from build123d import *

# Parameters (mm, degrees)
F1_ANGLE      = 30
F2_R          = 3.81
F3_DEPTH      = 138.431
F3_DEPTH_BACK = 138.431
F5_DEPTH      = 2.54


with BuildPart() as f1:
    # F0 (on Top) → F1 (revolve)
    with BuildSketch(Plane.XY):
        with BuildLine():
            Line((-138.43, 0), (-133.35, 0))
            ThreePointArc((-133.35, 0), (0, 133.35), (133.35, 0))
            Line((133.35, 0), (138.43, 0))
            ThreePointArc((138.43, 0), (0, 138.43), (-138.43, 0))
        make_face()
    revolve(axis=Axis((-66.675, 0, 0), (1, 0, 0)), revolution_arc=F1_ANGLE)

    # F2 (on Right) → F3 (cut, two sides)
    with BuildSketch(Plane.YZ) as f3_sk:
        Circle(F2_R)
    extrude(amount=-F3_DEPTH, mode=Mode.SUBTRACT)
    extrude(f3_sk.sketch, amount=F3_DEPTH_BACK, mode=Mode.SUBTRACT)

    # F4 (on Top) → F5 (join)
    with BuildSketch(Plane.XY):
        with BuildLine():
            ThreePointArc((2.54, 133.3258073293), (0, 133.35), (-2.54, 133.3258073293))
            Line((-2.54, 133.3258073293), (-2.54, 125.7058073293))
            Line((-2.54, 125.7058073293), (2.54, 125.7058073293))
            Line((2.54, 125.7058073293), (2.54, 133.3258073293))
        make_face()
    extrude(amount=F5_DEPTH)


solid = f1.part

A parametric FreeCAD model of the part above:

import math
import FreeCAD as App
import Part
import Sketcher
Q = App.Units.Quantity

doc = App.newDocument("Part")
body = doc.addObject("PartDesign::Body", "Body")

# Sketch on XY plane
sketch1 = doc.addObject("Sketcher::SketchObject", "Sketch")
body.addObject(sketch1)
sketch1.AttachmentSupport = (doc.XY_Plane, [""])
sketch1.MapMode = "FlatFace"
sketch1.addGeometry([
    Part.LineSegment(App.Vector(-138, 0, 0), App.Vector(-133, 0, 0)),
    Part.ArcOfCircle(Part.Circle(App.Vector(0, 0, 0), App.Vector(0, 0, 1), 133), math.radians(0), math.radians(180)),
    Part.LineSegment(App.Vector(133, 0, 0), App.Vector(138, 0, 0)),
    Part.ArcOfCircle(Part.Circle(App.Vector(0, 0, 0), App.Vector(0, 0, 1), 138), math.radians(0), math.radians(180)),
], False)
sketch1.addConstraint([
    Sketcher.Constraint("Coincident", 0, 2, 1, 2),
    Sketcher.Constraint("Coincident", 1, 1, 2, 1),
    Sketcher.Constraint("Coincident", 2, 2, 3, 1),
    Sketcher.Constraint("Coincident", 3, 2, 0, 1),
    Sketcher.Constraint("Horizontal", 0),
    Sketcher.Constraint("Horizontal", 2),
    Sketcher.Constraint("Coincident", 1, 3, -1, 1),
    Sketcher.Constraint("Coincident", 3, 3, -1, 1),
    Sketcher.Constraint("PointOnObject", 0, 2, -1),
    Sketcher.Constraint("PointOnObject", 1, 1, -1),
    Sketcher.Constraint("Radius", 1, Q("5.25 in")),
    Sketcher.Constraint("Radius", 3, Q("5.45 in")),
])
revolution = doc.addObject("PartDesign::Revolution", "Revolution")
body.addObject(revolution)
revolution.Profile = sketch1
revolution.ReferenceAxis = (sketch1, ["H_Axis"])
revolution.Angle = 30

# Sketch on YZ plane
sketch2 = doc.addObject("Sketcher::SketchObject", "Sketch001")
body.addObject(sketch2)
sketch2.AttachmentSupport = (doc.YZ_Plane, [""])
sketch2.MapMode = "FlatFace"
sketch2.addGeometry(Part.Circle(App.Vector(0, 0, 0), App.Vector(0, 0, 1), 3.8), False)
sketch2.addConstraint([
    Sketcher.Constraint("Coincident", 0, 3, -1, 1),
    Sketcher.Constraint("Diameter", 0, Q("0.3 in")),
])
pocket1 = doc.addObject("PartDesign::Pocket", "Pocket")
body.addObject(pocket1)
pocket1.Profile = sketch2
pocket1.Type = "ThroughAll"
pocket1.Midplane = True

# Sketch on XY plane
sketch3 = doc.addObject("Sketcher::SketchObject", "Sketch002")
body.addObject(sketch3)
sketch3.AttachmentSupport = (doc.XY_Plane, [""])
sketch3.MapMode = "FlatFace"
sketch3.addGeometry([
    Part.ArcOfCircle(Part.Circle(App.Vector(0, 0, 0), App.Vector(0, 0, 1), 133), math.radians(88.91), math.radians(91.09)),
    Part.LineSegment(App.Vector(-3, 133, 0), App.Vector(-3, 126, 0)),
    Part.LineSegment(App.Vector(-3, 126, 0), App.Vector(3, 126, 0)),
    Part.LineSegment(App.Vector(3, 126, 0), App.Vector(3, 133, 0)),
], False)
sketch3.addConstraint([
    Sketcher.Constraint("Coincident", 0, 2, 1, 1),
    Sketcher.Constraint("Coincident", 1, 2, 2, 1),
    Sketcher.Constraint("Coincident", 2, 2, 3, 1),
    Sketcher.Constraint("Coincident", 3, 2, 0, 1),
    Sketcher.Constraint("Vertical", 1),
    Sketcher.Constraint("Horizontal", 2),
    Sketcher.Constraint("Vertical", 3),
    Sketcher.Constraint("Coincident", 0, 3, -1, 1),
    Sketcher.Constraint("Horizontal", 0, 2, 3, 2),
    Sketcher.Constraint("Radius", 0, Q("5.25 in")),
    Sketcher.Constraint("DistanceX", 2, 1, 2, 2, Q("0.2 in")),
    Sketcher.Constraint("DistanceY", 1, 2, 1, 1, Q("0.3 in")),
])
pad1 = doc.addObject("PartDesign::Pad", "Pad")
body.addObject(pad1)
pad1.Profile = sketch3
pad1.Length = Q("0.1 in")

doc.recompute()
